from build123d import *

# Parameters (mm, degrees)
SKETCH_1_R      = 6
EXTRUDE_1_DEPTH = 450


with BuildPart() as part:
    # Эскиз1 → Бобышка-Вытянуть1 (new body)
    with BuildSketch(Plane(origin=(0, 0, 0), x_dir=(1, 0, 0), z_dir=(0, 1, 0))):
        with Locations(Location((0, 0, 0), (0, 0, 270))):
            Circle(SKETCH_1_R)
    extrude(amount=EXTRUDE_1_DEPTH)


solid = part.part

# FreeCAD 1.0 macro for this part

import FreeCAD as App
import Part
import Sketcher

V = App.Vector

doc = App.newDocument("Part")
body = doc.addObject("PartDesign::Body", "Body")

sketch1 = body.newObject("Sketcher::SketchObject", "Sketch")
sketch1.AttachmentSupport = (doc.getObject("XZ_Plane"), [""])
sketch1.MapMode = "FlatFace"
sketch1.addGeometry(Part.Circle(V(0, 0, 0), V(0, 0, 1), 6), False)
sketch1.addConstraint(Sketcher.Constraint("Coincident", 0, 3, -1, 1))
sketch1.addConstraint(Sketcher.Constraint("Diameter", 0, 12.0))
pad1 = body.newObject("PartDesign::Pad", "Pad")
pad1.Profile = sketch1
pad1.Length = 450
pad1.Reversed = True

doc.recompute()
